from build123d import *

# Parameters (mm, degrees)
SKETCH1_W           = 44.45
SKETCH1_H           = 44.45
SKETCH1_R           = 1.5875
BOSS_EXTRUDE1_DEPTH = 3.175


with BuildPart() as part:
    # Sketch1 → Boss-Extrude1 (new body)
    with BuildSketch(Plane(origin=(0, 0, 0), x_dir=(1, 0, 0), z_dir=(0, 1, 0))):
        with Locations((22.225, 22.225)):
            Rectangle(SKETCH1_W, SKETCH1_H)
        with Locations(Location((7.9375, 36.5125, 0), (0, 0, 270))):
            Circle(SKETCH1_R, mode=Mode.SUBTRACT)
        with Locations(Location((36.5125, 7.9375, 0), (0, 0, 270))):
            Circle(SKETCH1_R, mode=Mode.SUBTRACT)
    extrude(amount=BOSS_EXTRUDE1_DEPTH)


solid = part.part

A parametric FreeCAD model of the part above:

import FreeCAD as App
import Part
import Sketcher
from FreeCAD import Vector
Q = App.Units.Quantity

doc = App.newDocument("Part")
params = doc.addObject("Spreadsheet::Sheet", "Params")
for row, (alias, value) in enumerate([
    ("sketch1_diameter", "0.125 in"),
    ("sketch1_width", "1.75 in"),
    ("pad1_length", "0.125 in"),
], start=1):
    params.set(f"A{row}", alias)
    params.set(f"B{row}", "=" + value)
    params.setAlias(f"B{row}", alias)

body = doc.addObject("PartDesign::Body", "Body")

# Sketch on XZ plane
sketch1 = body.newObject("Sketcher::SketchObject", "Sketch")
sketch1.AttachmentSupport = (doc.getObject("XZ_Plane"), [""])
sketch1.MapMode = "FlatFace"
sketch1.addGeometry(Part.LineSegment(Vector(0, -44.5, 0), Vector(0, 0, 0)), False)
sketch1.addGeometry(Part.LineSegment(Vector(0, 0, 0), Vector(44.5, 0, 0)), False)
sketch1.addGeometry(Part.LineSegment(Vector(44.5, 0, 0), Vector(44.5, -44.5, 0)), False)
sketch1.addGeometry(Part.LineSegment(Vector(44.5, -44.5, 0), Vector(0, -44.5, 0)), False)
sketch1.addGeometry(Part.Circle(Vector(36.5, -7.9, 0), Vector(0, 0, 1), 1.6), False)
sketch1.addGeometry(Part.Circle(Vector(7.9, -36.5, 0), Vector(0, 0, 1), 1.6), False)
sketch1.addConstraint(Sketcher.Constraint("Coincident", 0, 2, 1, 1))
sketch1.addConstraint(Sketcher.Constraint("Coincident", 1, 2, 2, 1))
sketch1.addConstraint(Sketcher.Constraint("Coincident", 2, 2, 3, 1))
sketch1.addConstraint(Sketcher.Constraint("Coincident", 3, 2, 0, 1))
sketch1.addConstraint(Sketcher.Constraint("Vertical", 0))
sketch1.addConstraint(Sketcher.Constraint("Horizontal", 1))
sketch1.addConstraint(Sketcher.Constraint("Vertical", 2))
sketch1.addConstraint(Sketcher.Constraint("Horizontal", 3))
sketch1.addConstraint(Sketcher.Constraint("Coincident", 0, 2, -1, 1))
sketch1.addConstraint(Sketcher.Constraint("Equal", 4, 5))
sketch1.addConstraint(Sketcher.Constraint("Equal", 3, 0))
sketch1.addConstraint(Sketcher.Constraint("Diameter", 4, Q("0.125 in")))
sketch1.addConstraint(Sketcher.Constraint("DistanceX", 1, 1, 1, 2, Q("1.75 in")))
sketch1.addConstraint(Sketcher.Constraint("DistanceX", -1, 1, 4, 3, Q("1.4375 in")))
sketch1.addConstraint(Sketcher.Constraint("DistanceY", 4, 3, -1, 1, Q("0.3125 in")))
sketch1.addConstraint(Sketcher.Constraint("DistanceX", -1, 1, 5, 3, Q("0.3125 in")))
sketch1.addConstraint(Sketcher.Constraint("DistanceY", 5, 3, -1, 1, Q("1.4375 in")))
sketch1.setExpression("Constraints[11]", "Params.sketch1_diameter")
sketch1.setExpression("Constraints[12]", "Params.sketch1_width")
pad1 = body.newObject("PartDesign::Pad", "Pad")
pad1.Profile = sketch1
pad1.setExpression("Length", "Params.pad1_length")
pad1.Reversed = True

doc.recompute()
